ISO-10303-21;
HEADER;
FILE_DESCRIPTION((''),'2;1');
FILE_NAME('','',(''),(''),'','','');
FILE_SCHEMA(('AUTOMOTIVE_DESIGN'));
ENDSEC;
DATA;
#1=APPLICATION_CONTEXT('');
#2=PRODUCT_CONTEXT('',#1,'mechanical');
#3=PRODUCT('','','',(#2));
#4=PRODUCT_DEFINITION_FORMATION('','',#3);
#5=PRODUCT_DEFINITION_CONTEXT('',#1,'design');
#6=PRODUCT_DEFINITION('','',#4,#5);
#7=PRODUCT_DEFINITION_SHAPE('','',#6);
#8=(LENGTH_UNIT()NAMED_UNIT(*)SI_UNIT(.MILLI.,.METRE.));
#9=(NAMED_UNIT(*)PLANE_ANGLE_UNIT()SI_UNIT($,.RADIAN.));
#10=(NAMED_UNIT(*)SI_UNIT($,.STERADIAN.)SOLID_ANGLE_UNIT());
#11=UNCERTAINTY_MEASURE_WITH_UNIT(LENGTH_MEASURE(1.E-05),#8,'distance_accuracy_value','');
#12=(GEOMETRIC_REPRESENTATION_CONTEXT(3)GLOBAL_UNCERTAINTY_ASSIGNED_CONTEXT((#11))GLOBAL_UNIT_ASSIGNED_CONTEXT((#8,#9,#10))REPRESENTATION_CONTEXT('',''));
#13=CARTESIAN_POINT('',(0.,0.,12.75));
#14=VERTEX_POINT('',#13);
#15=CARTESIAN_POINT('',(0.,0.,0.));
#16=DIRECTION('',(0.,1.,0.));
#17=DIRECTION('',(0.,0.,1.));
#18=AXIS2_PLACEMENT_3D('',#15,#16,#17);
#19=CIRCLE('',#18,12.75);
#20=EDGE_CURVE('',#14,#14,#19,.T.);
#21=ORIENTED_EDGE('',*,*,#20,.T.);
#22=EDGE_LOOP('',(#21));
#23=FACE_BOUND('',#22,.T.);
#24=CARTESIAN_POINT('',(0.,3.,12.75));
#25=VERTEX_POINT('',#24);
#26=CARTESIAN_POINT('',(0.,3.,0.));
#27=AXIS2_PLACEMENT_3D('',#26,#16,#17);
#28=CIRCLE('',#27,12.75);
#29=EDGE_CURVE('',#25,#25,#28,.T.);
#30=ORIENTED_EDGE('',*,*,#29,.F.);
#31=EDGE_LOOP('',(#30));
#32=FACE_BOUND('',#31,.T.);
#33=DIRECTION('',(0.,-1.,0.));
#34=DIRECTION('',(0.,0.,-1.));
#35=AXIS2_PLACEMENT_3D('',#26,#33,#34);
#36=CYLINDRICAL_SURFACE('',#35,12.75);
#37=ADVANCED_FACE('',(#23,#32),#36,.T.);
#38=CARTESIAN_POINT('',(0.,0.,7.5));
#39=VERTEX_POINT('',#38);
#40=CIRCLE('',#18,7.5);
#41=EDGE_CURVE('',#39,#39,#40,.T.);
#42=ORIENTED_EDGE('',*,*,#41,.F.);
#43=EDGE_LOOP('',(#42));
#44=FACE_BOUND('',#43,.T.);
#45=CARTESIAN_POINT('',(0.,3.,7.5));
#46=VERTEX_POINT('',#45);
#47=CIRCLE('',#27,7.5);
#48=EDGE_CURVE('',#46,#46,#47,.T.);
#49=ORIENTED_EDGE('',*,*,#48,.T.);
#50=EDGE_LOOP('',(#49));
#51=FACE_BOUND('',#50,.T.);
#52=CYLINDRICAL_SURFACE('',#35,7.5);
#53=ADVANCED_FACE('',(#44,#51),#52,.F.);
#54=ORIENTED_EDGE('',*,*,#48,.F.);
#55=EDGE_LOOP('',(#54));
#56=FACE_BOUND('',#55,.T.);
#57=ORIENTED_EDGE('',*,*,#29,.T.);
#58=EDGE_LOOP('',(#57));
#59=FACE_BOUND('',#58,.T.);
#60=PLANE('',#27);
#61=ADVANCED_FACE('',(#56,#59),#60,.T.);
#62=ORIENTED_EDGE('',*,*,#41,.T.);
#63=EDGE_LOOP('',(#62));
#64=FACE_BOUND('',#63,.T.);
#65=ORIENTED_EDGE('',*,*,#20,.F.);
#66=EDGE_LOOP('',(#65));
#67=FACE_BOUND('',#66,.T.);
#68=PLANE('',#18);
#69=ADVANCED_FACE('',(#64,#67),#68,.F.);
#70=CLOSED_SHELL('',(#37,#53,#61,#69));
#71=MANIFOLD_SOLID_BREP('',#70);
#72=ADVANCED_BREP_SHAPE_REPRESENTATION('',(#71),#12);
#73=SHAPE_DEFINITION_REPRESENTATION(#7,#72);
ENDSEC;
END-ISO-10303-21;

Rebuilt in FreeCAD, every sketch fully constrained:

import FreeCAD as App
import Part
import Sketcher

V = App.Vector
Q = App.Units.Quantity

doc = App.newDocument("Part")
params = doc.addObject("Spreadsheet::Sheet", "Params")
for row, (alias, value) in enumerate([
    ("sketch1_diameter", "15 mm"),
    ("sketch1_diameter2", "25.5 mm"),
    ("pad1_length", "3 mm"),
], start=1):
    params.set(f"A{row}", alias)
    params.set(f"B{row}", "=" + value)
    params.setAlias(f"B{row}", alias)

body = doc.addObject("PartDesign::Body", "Body")

# Sketch on XZ plane
sketch1 = body.newObject("Sketcher::SketchObject", "Sketch")
sketch1.AttachmentSupport = (doc.getObject("XZ_Plane"), [""])
sketch1.MapMode = "FlatFace"
sketch1.addGeometry(Part.Circle(V(0, 0, 0), V(0, 0, 1), 12.75), False)
sketch1.addGeometry(Part.Circle(V(0, 0, 0), V(0, 0, 1), 7.5), False)
sketch1.addConstraint(Sketcher.Constraint("Coincident", 0, 3, -1, 1))
sketch1.addConstraint(Sketcher.Constraint("Coincident", 1, 3, -1, 1))
sketch1.addConstraint(Sketcher.Constraint("Diameter", 1, Q("15 mm")))
sketch1.addConstraint(Sketcher.Constraint("Diameter", 0, Q("25.5 mm")))
sketch1.setExpression("Constraints[2]", "Params.sketch1_diameter")
sketch1.setExpression("Constraints[3]", "Params.sketch1_diameter2")
pad1 = body.newObject("PartDesign::Pad", "Pad")
pad1.Profile = sketch1
pad1.setExpression("Length", "Params.pad1_length")
pad1.Reversed = True

doc.recompute()
